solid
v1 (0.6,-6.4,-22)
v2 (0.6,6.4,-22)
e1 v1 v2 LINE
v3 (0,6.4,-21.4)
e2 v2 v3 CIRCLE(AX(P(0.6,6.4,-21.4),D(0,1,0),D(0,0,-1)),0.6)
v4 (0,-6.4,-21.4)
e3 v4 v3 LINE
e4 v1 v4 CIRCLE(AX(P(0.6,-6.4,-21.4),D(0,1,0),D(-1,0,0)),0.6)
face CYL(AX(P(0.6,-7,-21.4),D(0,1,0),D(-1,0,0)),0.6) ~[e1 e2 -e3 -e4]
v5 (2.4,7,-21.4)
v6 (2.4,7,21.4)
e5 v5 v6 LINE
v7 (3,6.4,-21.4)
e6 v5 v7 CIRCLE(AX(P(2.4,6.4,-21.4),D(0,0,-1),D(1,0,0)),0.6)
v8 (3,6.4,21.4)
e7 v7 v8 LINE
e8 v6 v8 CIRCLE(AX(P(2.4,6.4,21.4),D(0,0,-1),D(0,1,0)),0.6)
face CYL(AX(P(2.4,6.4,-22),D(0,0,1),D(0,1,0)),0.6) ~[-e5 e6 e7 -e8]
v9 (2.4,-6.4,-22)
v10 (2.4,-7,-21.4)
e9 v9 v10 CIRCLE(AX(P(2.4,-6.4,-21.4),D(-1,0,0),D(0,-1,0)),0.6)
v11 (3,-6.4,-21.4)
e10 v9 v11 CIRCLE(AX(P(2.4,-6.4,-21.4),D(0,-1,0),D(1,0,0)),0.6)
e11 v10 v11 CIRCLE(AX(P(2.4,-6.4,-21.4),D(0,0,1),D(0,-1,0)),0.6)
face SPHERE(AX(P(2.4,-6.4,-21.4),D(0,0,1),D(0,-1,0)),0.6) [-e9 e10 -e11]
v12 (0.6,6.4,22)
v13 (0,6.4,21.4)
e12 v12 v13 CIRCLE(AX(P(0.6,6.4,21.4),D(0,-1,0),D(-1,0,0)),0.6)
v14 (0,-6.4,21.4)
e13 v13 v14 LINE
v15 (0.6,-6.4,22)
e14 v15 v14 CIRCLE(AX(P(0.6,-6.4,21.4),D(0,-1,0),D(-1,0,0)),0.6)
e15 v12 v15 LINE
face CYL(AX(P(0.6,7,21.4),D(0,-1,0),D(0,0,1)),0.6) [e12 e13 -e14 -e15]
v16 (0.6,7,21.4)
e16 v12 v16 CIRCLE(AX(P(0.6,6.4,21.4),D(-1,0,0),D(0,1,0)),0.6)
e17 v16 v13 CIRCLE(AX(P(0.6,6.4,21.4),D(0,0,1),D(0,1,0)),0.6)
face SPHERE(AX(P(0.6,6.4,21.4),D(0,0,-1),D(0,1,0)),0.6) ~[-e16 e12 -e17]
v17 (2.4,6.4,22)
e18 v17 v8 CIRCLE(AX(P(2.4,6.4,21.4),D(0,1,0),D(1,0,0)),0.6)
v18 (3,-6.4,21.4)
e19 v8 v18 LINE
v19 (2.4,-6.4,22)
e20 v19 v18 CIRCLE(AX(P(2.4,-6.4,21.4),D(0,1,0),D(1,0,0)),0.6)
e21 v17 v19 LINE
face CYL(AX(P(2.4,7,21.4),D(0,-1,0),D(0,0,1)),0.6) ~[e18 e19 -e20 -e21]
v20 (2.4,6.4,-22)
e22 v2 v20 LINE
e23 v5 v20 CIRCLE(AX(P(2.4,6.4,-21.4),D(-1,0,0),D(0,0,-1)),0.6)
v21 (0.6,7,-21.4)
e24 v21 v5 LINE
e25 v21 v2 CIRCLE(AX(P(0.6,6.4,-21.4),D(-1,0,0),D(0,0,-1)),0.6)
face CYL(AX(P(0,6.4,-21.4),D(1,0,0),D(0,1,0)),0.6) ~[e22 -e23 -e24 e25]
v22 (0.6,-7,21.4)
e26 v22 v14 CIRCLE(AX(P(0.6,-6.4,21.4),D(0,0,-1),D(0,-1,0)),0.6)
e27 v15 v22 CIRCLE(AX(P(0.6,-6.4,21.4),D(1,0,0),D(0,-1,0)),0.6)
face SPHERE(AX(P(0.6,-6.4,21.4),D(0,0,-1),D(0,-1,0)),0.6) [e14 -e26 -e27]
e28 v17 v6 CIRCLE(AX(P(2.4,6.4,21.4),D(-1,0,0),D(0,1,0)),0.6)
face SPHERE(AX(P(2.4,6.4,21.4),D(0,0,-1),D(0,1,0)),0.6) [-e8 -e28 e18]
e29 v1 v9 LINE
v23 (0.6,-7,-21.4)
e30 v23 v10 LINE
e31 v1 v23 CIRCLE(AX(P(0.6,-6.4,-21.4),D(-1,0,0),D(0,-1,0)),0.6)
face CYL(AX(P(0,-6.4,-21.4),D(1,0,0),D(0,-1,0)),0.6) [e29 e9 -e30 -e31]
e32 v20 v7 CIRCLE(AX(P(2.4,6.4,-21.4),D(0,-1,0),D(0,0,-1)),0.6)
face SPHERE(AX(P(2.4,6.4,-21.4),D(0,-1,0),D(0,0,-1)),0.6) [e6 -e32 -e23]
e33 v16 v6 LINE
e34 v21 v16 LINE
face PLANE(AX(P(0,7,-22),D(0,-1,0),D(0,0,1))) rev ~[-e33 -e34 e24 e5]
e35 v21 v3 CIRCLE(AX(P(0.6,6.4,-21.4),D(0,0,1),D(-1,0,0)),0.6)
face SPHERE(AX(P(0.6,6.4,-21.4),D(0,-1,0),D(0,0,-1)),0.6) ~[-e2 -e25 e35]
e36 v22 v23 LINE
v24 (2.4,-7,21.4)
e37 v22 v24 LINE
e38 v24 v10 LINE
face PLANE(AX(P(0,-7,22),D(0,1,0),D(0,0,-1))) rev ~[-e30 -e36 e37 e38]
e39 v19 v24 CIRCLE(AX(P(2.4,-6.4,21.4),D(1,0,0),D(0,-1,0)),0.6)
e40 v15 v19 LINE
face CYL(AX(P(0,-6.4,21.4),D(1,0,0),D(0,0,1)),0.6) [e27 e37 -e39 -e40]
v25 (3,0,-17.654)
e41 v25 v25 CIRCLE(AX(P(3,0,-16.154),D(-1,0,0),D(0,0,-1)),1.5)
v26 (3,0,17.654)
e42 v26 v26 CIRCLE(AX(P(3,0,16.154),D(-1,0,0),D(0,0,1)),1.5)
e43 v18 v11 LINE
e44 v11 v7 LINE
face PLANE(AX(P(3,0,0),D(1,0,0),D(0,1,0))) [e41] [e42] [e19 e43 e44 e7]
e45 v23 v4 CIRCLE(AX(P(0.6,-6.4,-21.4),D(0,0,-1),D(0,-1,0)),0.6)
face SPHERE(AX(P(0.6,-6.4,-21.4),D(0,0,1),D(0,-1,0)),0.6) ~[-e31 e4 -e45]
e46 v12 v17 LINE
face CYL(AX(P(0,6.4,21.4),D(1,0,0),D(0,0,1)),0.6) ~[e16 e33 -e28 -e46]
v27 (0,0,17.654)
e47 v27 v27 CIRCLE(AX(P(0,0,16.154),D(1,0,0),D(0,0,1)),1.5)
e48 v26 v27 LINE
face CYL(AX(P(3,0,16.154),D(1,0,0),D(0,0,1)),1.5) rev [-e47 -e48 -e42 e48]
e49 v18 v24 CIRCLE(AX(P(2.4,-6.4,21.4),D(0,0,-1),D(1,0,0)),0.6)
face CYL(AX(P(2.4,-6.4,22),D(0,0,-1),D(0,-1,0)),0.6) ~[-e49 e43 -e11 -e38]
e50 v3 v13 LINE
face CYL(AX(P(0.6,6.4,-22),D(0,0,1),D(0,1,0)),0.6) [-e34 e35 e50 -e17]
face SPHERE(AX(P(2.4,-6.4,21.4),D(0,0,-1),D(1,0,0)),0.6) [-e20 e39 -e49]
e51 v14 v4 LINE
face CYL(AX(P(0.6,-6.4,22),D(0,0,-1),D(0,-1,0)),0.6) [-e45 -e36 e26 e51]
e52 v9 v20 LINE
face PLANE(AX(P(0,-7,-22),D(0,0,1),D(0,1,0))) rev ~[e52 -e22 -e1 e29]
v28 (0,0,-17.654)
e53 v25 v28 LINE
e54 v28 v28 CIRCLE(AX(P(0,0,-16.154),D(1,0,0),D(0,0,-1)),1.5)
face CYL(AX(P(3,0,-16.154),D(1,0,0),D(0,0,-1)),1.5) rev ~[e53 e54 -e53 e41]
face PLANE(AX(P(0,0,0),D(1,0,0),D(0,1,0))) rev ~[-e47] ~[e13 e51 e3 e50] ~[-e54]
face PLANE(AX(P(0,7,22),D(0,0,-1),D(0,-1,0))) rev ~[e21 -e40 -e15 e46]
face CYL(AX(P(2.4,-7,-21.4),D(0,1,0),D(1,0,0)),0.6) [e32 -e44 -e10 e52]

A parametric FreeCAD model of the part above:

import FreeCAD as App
import Part
import Sketcher
Q = App.Units.Quantity


def edges_at(feature, points):
    """Names of the edges that pass closest to the given points."""
    edges = feature.Shape.Edges
    near = lambda p: min(range(len(edges)), key=lambda i: edges[i].distToShape(Part.Vertex(*p))[0])
    return sorted({f"Edge{near(p) + 1}" for p in points})

doc = App.newDocument("Part")
body = doc.addObject("PartDesign::Body", "Body")

# Sketch on YZ plane
sketch1 = body.newObject("Sketcher::SketchObject", "Sketch")
sketch1.AttachmentSupport = (doc.getObject("YZ_Plane"), [""])
sketch1.MapMode = "FlatFace"
sketch1.addGeometry(Part.LineSegment(App.Vector(7, 22, 0), App.Vector(-7, 22, 0)), False)
sketch1.addGeometry(Part.LineSegment(App.Vector(-7, 22, 0), App.Vector(-7, -22, 0)), False)
sketch1.addGeometry(Part.LineSegment(App.Vector(-7, -22, 0), App.Vector(7, -22, 0)), False)
sketch1.addGeometry(Part.LineSegment(App.Vector(7, -22, 0), App.Vector(7, 22, 0)), False)
sketch1.addConstraint(Sketcher.Constraint("Coincident", 0, 2, 1, 1))
sketch1.addConstraint(Sketcher.Constraint("Coincident", 1, 2, 2, 1))
sketch1.addConstraint(Sketcher.Constraint("Coincident", 2, 2, 3, 1))
sketch1.addConstraint(Sketcher.Constraint("Coincident", 3, 2, 0, 1))
sketch1.addConstraint(Sketcher.Constraint("Horizontal", 0))
sketch1.addConstraint(Sketcher.Constraint("Vertical", 1))
sketch1.addConstraint(Sketcher.Constraint("Horizontal", 2))
sketch1.addConstraint(Sketcher.Constraint("Vertical", 3))
sketch1.addConstraint(Sketcher.Constraint("Symmetric", 0, 2, 2, 2, -1, 1))
sketch1.addConstraint(Sketcher.Constraint("DistanceX", 0, 2, 0, 1, Q("14 mm")))
sketch1.addConstraint(Sketcher.Constraint("DistanceY", 1, 2, 1, 1, Q("44 mm")))
pad1 = body.newObject("PartDesign::Pad", "Pad")
pad1.Profile = sketch1
pad1.Length = 3

# Sketch on YZ plane
sketch2 = body.newObject("Sketcher::SketchObject", "Sketch001")
sketch2.AttachmentSupport = (doc.getObject("YZ_Plane"), [""])
sketch2.MapMode = "FlatFace"
sketch2.AttachmentOffset = App.Placement(App.Vector(0, 0, 3), App.Rotation())
sketch2.addGeometry(Part.Circle(App.Vector(0, -16.2, 0), App.Vector(0, 0, 1), 1.5), False)
sketch2.addConstraint(Sketcher.Constraint("PointOnObject", 0, 3, -2))
sketch2.addConstraint(Sketcher.Constraint("Diameter", 0, Q("3 mm")))
sketch2.addConstraint(Sketcher.Constraint("DistanceY", 0, 3, -1, 1, Q("16.154 mm")))
pocket1 = body.newObject("PartDesign::Pocket", "Pocket")
pocket1.Profile = sketch2
pocket1.Length = 3
doc.recompute()

mirrored = body.newObject("PartDesign::Mirrored", "Mirrored")
mirrored.Originals = [pocket1]
mirrored.MirrorPlane = (doc.getObject("XY_Plane"), [""])
body.Tip = mirrored
doc.recompute()

fillet = body.newObject("PartDesign::Fillet", "Fillet")
fillet.Base = (mirrored, edges_at(mirrored, [
    (3, -7, 0),
    (0, -7, 0),
    (1.5, -7, -22),
    (3, 0, -22),
    (0, 0, -22),
    (1.5, 7, -22),
    (3, 7, 0),
    (0, 7, 0),
    (1.5, 7, 22),
    (3, 0, 22),
    (1.5, -7, 22),
    (0, 0, 22),
]))
fillet.Radius = 0.6

doc.recompute()
